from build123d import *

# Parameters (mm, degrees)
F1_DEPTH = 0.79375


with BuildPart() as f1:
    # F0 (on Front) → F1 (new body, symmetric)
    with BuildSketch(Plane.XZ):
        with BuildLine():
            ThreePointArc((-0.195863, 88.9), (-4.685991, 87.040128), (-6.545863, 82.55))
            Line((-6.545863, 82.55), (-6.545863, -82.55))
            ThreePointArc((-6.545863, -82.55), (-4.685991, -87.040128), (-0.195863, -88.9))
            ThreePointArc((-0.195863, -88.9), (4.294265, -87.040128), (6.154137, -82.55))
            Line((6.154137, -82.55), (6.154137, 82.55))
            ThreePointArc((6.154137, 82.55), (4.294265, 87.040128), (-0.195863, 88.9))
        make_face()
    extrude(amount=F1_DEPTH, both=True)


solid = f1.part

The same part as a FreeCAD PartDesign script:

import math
import FreeCAD as App
import Part
import Sketcher

V = App.Vector
Q = App.Units.Quantity

doc = App.newDocument("Part")
body = doc.addObject("PartDesign::Body", "Body")

sketch1 = body.newObject("Sketcher::SketchObject", "Sketch")
sketch1.AttachmentSupport = (doc.getObject("XZ_Plane"), [""])
sketch1.MapMode = "FlatFace"
sketch1.addGeometry(Part.ArcOfCircle(Part.Circle(V(0, 83, 0), V(0, 0, 1), 6), math.radians(90), math.radians(180)), False)
sketch1.addGeometry(Part.LineSegment(V(-7, 83, 0), V(-7, -83, 0)), False)
sketch1.addGeometry(Part.ArcOfCircle(Part.Circle(V(0, -83, 0), V(0, 0, 1), 6), math.radians(-180), math.radians(-90)), False)
sketch1.addGeometry(Part.ArcOfCircle(Part.Circle(V(0, -83, 0), V(0, 0, 1), 6), math.radians(-90), math.radians(0)), False)
sketch1.addGeometry(Part.LineSegment(V(6, -83, 0), V(6, 83, 0)), False)
sketch1.addGeometry(Part.ArcOfCircle(Part.Circle(V(0, 83, 0), V(0, 0, 1), 6), math.radians(0), math.radians(90)), False)
sketch1.addConstraint(Sketcher.Constraint("Tangent", 0, 2, 1, 1))
sketch1.addConstraint(Sketcher.Constraint("Tangent", 1, 2, 2, 1))
sketch1.addConstraint(Sketcher.Constraint("Tangent", 2, 2, 3, 1))
sketch1.addConstraint(Sketcher.Constraint("Tangent", 3, 2, 4, 1))
sketch1.addConstraint(Sketcher.Constraint("Tangent", 4, 2, 5, 1))
sketch1.addConstraint(Sketcher.Constraint("Tangent", 5, 2, 0, 1))
sketch1.addConstraint(Sketcher.Constraint("Vertical", 1))
sketch1.addConstraint(Sketcher.Constraint("Vertical", 4))
sketch1.addConstraint(Sketcher.Constraint("Equal", 0, 2))
sketch1.addConstraint(Sketcher.Constraint("Equal", 2, 3))
sketch1.addConstraint(Sketcher.Constraint("Symmetric", 2, 2, 5, 2, -1))
sketch1.addConstraint(Sketcher.Constraint("Vertical", 5, 3, 2, 2))
sketch1.addConstraint(Sketcher.Constraint("Radius", 0, Q("0.25 in")))
sketch1.addConstraint(Sketcher.Constraint("DistanceY", 1, 2, 1, 1, Q("6.5 in")))
sketch1.addConstraint(Sketcher.Constraint("DistanceX", 0, 3, -1, 1, 0.195863))
pad1 = body.newObject("PartDesign::Pad", "Pad")
pad1.Profile = sketch1
pad1.Length = Q("0.0625 in")
pad1.Midplane = True

doc.recompute()
